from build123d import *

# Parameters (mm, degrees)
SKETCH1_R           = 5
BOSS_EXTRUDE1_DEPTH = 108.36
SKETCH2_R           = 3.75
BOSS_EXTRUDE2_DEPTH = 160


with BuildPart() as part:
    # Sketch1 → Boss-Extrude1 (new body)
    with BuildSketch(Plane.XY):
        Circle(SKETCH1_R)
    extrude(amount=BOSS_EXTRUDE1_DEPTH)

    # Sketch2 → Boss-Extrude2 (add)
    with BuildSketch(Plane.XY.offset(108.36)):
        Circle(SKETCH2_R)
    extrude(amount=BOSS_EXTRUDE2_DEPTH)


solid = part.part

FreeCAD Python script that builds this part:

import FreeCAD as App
import Part
import Sketcher
from FreeCAD import Vector

doc = App.newDocument("Part")
body = doc.addObject("PartDesign::Body", "Body")

# Sketch on XY plane
sketch1 = body.newObject("Sketcher::SketchObject", "Sketch")
sketch1.AttachmentSupport = (doc.getObject("XY_Plane"), [""])
sketch1.MapMode = "FlatFace"
sketch1.addGeometry(Part.Circle(Vector(0, 0, 0), Vector(0, 0, 1), 5), False)
sketch1.addConstraint([
    Sketcher.Constraint("Coincident", 0, 3, -1, 1),
    Sketcher.Constraint("Diameter", 0, 10.0),
])
pad1 = body.newObject("PartDesign::Pad", "Pad")
pad1.Profile = sketch1
pad1.Length = 108.36

# Sketch on XY plane
sketch2 = body.newObject("Sketcher::SketchObject", "Sketch001")
sketch2.AttachmentSupport = (doc.getObject("XY_Plane"), [""])
sketch2.MapMode = "FlatFace"
sketch2.AttachmentOffset = App.Placement(Vector(0, 0, 108.36), App.Rotation())
sketch2.addGeometry(Part.Circle(Vector(0, 0, 0), Vector(0, 0, 1), 3.8), False)
sketch2.addConstraint([
    Sketcher.Constraint("Coincident", 0, 3, -1, 1),
    Sketcher.Constraint("Diameter", 0, 7.5),
])
pad2 = body.newObject("PartDesign::Pad", "Pad001")
pad2.Profile = sketch2
pad2.Length = 160

doc.recompute()
